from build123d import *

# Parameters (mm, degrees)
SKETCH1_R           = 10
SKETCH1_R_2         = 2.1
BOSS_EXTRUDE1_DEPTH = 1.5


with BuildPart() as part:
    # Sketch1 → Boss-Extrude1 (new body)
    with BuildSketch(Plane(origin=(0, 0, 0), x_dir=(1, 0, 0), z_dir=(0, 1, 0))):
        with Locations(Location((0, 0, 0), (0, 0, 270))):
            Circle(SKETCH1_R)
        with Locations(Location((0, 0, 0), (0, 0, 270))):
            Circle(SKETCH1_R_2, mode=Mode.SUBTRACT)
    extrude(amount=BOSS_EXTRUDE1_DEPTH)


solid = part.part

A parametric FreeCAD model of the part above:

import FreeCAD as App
import Part
import Sketcher
Q = App.Units.Quantity

doc = App.newDocument("Part")
body = doc.addObject("PartDesign::Body", "Body")

sketch1 = body.newObject("Sketcher::SketchObject", "Sketch")
sketch1.AttachmentSupport = (doc.getObject("XZ_Plane"), [""])
sketch1.MapMode = "FlatFace"
sketch1.addGeometry(Part.Circle(App.Vector(0, 0, 0), App.Vector(0, 0, 1), 10), False)
sketch1.addGeometry(Part.Circle(App.Vector(0, 0, 0), App.Vector(0, 0, 1), 2.1), False)
sketch1.addConstraint(Sketcher.Constraint("Coincident", 0, 3, -1, 1))
sketch1.addConstraint(Sketcher.Constraint("Coincident", 1, 3, -1, 1))
sketch1.addConstraint(Sketcher.Constraint("Diameter", 0, Q("20 mm")))
sketch1.addConstraint(Sketcher.Constraint("Diameter", 1, Q("4.2 mm")))
pad1 = body.newObject("PartDesign::Pad", "Pad")
pad1.Profile = sketch1
pad1.Length = 1.5
pad1.Reversed = True

doc.recompute()
